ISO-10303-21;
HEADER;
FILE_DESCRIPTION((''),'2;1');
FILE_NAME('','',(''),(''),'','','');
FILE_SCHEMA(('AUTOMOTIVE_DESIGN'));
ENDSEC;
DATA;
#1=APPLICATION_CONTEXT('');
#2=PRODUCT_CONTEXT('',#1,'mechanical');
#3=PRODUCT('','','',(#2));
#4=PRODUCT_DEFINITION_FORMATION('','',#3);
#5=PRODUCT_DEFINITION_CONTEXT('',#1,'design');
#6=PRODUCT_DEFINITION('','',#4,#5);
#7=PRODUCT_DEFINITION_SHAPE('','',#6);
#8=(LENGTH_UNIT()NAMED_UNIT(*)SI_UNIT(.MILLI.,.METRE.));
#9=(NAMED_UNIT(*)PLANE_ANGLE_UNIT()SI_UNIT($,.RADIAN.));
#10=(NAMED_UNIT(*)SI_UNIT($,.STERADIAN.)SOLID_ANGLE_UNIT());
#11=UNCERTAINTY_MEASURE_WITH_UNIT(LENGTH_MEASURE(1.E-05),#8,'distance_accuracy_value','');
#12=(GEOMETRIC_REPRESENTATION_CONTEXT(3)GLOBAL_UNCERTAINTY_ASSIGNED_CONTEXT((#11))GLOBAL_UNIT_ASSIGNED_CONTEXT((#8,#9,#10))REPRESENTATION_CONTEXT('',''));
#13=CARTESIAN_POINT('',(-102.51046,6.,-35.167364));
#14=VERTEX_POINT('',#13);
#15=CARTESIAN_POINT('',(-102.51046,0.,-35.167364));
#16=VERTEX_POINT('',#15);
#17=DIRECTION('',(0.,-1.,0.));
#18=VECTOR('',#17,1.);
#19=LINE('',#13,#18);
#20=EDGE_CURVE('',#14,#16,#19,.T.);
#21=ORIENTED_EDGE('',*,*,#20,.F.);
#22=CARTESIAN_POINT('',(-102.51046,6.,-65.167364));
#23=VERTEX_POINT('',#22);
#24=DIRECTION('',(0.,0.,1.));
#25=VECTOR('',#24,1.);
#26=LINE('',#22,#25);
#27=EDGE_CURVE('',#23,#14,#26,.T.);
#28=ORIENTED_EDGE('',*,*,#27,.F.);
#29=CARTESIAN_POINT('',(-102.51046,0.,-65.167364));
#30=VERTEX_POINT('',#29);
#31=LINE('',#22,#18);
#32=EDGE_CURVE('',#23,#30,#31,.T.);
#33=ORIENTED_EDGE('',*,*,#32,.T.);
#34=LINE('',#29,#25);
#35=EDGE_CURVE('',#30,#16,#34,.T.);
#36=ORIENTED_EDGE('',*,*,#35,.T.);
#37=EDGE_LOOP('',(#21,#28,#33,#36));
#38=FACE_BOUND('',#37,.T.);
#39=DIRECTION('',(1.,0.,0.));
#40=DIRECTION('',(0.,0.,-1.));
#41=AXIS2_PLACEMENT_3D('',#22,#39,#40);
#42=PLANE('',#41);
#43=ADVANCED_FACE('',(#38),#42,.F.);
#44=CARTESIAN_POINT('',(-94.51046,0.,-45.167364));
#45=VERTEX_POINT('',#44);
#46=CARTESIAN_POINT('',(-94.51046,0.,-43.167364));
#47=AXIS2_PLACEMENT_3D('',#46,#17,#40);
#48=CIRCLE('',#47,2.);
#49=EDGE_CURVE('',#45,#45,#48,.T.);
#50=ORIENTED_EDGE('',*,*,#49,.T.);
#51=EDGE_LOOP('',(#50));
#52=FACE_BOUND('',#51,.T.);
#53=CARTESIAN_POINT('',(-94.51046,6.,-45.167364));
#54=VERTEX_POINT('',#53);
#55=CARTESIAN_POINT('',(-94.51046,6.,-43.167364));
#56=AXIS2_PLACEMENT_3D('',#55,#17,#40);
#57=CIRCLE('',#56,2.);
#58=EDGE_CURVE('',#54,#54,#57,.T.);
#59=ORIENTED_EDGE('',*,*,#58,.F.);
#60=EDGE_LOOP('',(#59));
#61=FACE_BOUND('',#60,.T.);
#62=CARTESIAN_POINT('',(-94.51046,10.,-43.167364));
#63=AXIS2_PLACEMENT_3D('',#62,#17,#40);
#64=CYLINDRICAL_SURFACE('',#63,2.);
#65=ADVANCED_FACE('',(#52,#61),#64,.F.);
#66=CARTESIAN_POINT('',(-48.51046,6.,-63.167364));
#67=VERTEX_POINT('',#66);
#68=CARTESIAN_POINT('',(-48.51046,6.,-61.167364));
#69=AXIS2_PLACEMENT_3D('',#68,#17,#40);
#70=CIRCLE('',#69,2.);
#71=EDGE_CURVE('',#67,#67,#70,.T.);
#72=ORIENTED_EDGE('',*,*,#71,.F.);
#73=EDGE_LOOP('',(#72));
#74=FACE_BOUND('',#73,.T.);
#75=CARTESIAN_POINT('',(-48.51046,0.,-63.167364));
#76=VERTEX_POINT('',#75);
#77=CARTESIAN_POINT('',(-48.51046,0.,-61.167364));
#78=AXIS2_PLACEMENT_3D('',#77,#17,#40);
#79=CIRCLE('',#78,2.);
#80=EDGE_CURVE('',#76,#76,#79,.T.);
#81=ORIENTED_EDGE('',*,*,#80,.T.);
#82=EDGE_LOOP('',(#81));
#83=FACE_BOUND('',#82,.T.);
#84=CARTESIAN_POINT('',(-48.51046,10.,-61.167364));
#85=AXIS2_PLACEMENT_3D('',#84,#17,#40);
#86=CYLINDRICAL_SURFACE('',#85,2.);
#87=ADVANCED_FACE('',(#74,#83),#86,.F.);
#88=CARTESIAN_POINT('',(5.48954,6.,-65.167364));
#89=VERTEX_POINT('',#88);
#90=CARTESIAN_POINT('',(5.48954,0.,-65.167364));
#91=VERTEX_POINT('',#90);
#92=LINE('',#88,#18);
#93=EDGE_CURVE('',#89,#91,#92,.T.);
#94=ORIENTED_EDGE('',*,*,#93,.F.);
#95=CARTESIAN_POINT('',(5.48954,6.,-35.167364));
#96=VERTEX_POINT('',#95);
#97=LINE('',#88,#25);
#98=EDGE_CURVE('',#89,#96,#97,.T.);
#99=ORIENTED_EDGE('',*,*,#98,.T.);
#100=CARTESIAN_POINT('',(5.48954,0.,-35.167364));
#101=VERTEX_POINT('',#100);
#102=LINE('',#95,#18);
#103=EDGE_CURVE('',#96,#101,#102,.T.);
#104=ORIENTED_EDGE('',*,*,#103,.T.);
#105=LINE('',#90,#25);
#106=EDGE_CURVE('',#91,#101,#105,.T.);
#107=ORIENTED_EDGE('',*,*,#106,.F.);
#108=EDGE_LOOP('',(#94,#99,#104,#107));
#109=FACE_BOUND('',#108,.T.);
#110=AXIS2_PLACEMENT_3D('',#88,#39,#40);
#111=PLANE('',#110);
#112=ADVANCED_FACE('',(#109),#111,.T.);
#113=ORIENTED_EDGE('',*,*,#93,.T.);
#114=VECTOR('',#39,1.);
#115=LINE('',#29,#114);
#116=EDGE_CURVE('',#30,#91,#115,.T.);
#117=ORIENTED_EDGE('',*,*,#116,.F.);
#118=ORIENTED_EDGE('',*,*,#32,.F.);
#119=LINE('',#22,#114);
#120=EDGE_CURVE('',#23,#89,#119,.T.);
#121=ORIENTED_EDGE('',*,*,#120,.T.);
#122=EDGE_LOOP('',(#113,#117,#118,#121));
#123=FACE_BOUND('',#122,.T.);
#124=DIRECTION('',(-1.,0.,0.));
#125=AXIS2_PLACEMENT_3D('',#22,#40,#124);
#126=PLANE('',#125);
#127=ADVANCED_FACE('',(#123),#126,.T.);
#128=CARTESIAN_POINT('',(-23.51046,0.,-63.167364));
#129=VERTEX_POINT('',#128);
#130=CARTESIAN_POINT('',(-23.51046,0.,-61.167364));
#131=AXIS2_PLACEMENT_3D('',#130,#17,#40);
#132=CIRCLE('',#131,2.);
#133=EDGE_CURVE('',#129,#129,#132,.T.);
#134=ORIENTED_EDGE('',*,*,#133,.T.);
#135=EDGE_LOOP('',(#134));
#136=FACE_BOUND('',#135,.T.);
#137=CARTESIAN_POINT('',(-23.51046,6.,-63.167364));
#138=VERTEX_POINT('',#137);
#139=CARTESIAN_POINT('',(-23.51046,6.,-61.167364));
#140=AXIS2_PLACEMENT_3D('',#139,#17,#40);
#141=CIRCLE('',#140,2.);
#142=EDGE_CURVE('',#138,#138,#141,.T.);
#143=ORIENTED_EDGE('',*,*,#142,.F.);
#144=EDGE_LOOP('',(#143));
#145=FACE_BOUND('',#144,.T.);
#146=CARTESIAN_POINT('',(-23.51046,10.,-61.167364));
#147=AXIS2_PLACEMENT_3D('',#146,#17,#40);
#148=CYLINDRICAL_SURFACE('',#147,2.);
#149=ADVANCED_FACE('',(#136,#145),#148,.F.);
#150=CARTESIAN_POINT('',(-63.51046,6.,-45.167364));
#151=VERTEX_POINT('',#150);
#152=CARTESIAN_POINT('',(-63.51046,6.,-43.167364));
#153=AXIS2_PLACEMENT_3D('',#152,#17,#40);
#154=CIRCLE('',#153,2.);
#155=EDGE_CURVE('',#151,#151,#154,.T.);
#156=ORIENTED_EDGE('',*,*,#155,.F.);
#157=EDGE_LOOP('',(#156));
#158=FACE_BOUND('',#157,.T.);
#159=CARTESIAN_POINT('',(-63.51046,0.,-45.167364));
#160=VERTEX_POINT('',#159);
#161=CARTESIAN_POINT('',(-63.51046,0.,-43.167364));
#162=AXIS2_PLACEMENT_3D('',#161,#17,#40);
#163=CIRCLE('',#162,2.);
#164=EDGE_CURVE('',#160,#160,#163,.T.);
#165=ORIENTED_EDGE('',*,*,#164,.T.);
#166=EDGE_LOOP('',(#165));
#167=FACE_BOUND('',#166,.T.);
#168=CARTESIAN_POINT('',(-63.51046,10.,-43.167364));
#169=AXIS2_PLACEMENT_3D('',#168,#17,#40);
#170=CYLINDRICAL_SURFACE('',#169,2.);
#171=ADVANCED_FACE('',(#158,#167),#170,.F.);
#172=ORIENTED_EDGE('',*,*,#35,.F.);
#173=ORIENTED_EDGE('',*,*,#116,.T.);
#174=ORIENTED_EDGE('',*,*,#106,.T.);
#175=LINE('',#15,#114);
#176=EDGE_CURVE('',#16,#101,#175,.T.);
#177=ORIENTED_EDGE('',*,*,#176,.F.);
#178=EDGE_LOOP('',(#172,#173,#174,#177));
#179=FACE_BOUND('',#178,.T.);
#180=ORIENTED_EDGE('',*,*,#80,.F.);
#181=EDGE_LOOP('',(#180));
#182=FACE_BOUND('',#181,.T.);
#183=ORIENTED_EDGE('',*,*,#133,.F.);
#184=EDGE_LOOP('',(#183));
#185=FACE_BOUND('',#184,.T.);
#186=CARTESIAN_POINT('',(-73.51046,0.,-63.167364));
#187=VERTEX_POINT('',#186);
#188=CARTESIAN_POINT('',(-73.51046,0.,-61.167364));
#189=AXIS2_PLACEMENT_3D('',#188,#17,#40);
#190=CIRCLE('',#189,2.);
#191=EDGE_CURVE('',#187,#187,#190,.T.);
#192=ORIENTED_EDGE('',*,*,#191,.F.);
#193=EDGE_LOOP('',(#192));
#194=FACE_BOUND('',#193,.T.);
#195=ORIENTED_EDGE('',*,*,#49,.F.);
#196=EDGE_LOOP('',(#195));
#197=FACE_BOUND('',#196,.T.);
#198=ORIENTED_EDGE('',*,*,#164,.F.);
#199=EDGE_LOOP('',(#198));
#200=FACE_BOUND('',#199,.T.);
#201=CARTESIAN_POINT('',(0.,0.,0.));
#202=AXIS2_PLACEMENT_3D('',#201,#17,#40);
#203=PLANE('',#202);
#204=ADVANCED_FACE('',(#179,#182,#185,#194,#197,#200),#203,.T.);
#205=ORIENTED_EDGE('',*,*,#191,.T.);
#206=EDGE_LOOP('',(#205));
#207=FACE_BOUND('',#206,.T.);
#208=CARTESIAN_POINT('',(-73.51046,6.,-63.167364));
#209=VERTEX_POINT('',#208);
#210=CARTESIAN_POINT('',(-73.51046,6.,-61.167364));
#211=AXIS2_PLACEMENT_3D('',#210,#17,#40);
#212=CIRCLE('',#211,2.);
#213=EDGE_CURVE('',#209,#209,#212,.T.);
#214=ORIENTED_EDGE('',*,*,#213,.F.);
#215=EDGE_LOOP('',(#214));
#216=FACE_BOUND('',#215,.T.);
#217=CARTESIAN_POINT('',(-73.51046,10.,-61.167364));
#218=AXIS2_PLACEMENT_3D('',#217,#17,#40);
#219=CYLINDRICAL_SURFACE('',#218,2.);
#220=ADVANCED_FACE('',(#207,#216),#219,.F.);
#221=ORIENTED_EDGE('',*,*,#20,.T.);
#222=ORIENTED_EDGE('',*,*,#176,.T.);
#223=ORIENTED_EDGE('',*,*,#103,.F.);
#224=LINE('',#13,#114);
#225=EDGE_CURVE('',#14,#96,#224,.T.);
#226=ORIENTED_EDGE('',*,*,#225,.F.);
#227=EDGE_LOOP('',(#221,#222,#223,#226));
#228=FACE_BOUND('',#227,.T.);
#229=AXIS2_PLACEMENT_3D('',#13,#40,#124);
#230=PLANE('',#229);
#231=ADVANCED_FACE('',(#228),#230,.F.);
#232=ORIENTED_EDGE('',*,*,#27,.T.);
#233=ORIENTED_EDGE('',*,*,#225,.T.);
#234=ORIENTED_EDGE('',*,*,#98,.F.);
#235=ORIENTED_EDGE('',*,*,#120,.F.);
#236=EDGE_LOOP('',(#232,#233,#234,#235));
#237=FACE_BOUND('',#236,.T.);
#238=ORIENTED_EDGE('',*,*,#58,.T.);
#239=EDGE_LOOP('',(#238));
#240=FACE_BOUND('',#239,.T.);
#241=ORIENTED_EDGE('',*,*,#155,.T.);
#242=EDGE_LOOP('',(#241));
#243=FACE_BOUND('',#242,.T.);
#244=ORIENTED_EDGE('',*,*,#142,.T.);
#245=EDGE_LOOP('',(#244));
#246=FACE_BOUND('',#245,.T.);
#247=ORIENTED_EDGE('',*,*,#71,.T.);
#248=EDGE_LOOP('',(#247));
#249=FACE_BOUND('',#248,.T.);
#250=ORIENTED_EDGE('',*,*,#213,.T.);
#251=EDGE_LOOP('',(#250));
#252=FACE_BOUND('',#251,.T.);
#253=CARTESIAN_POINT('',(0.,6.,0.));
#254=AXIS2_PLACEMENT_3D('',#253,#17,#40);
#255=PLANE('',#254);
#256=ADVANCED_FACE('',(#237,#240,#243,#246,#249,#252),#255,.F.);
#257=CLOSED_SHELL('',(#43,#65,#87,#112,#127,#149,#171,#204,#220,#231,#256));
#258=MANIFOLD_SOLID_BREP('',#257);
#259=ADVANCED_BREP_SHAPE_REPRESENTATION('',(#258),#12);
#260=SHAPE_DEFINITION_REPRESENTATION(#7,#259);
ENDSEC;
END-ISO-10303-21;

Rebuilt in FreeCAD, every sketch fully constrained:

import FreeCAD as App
import Part
import Sketcher

V = App.Vector

doc = App.newDocument("Part")
params = doc.addObject("Spreadsheet::Sheet", "Params")
for row, (alias, value) in enumerate([
    ("sketch1_width", "108 mm"),
    ("sketch1_height", "30 mm"),
    ("pad1_length", "6 mm"),
    ("sketch2_diameter", "4 mm"),
    ("pocket1_length", "10 mm"),
], start=1):
    params.set(f"A{row}", alias)
    params.set(f"B{row}", "=" + value)
    params.setAlias(f"B{row}", alias)

body = doc.addObject("PartDesign::Body", "Body")

# Sketch on XZ plane
sketch1 = body.newObject("Sketcher::SketchObject", "Sketch")
sketch1.AttachmentSupport = (doc.getObject("XZ_Plane"), [""])
sketch1.MapMode = "FlatFace"
sketch1.addGeometry([
    Part.LineSegment(V(-103, -65, 0), V(-103, -35, 0)),
    Part.LineSegment(V(-103, -35, 0), V(5, -35, 0)),
    Part.LineSegment(V(5, -35, 0), V(5, -65, 0)),
    Part.LineSegment(V(5, -65, 0), V(-103, -65, 0)),
], False)
sketch1.addConstraint([
    Sketcher.Constraint("Coincident", 0, 2, 1, 1),
    Sketcher.Constraint("Coincident", 1, 2, 2, 1),
    Sketcher.Constraint("Coincident", 2, 2, 3, 1),
    Sketcher.Constraint("Coincident", 3, 2, 0, 1),
    Sketcher.Constraint("Vertical", 0),
    Sketcher.Constraint("Horizontal", 1),
    Sketcher.Constraint("Vertical", 2),
    Sketcher.Constraint("Horizontal", 3),
    Sketcher.Constraint("DistanceX", 1, 1, 1, 2, 108.0),
    Sketcher.Constraint("DistanceY", 0, 1, 0, 2, 30.0),
    Sketcher.Constraint("DistanceX", 0, 2, -1, 1, 102.51046),
    Sketcher.Constraint("DistanceY", 0, 2, -1, 1, 35.167364),
])
sketch1.setExpression("Constraints[8]", "Params.sketch1_width")
sketch1.setExpression("Constraints[9]", "Params.sketch1_height")
pad1 = body.newObject("PartDesign::Pad", "Pad")
pad1.Profile = sketch1
pad1.setExpression("Length", "Params.pad1_length")
pad1.Reversed = True

# Sketch on XZ plane
sketch2 = body.newObject("Sketcher::SketchObject", "Sketch001")
sketch2.AttachmentSupport = (doc.getObject("XZ_Plane"), [""])
sketch2.MapMode = "FlatFace"
sketch2.addGeometry([
    Part.Circle(V(-73.5, -61.2, 0), V(0, 0, 1), 2),  # 0
    Part.Circle(V(-48.5, -61.2, 0), V(0, 0, 1), 2),  # 1
    Part.Circle(V(-23.5, -61.2, 0), V(0, 0, 1), 2),  # 2
    Part.Circle(V(-94.5, -43.2, 0), V(0, 0, 1), 2),  # 3
    Part.Circle(V(-63.5, -43.2, 0), V(0, 0, 1), 2),  # 4
], False)
sketch2.addConstraint([
    Sketcher.Constraint("Equal", 0, 1),
    Sketcher.Constraint("Equal", 1, 2),
    Sketcher.Constraint("Equal", 2, 3),
    Sketcher.Constraint("Equal", 3, 4),
    Sketcher.Constraint("Horizontal", 0, 3, 1, 3),
    Sketcher.Constraint("Horizontal", 1, 3, 2, 3),
    Sketcher.Constraint("Horizontal", 3, 3, 4, 3),
    Sketcher.Constraint("Diameter", 0, 4.0),
    Sketcher.Constraint("DistanceX", 0, 3, 1, 3, 25.0),
    Sketcher.Constraint("DistanceX", 1, 3, 2, 3, 25.0),
    Sketcher.Constraint("DistanceX", 3, 3, 0, 3, 21.0),
    Sketcher.Constraint("DistanceY", 0, 3, 3, 3, 18.0),
    Sketcher.Constraint("DistanceX", 0, 3, 4, 3, 10.0),
    Sketcher.Constraint("DistanceX", 0, 3, -1, 1, 73.51046),
    Sketcher.Constraint("DistanceY", 0, 3, -1, 1, 61.167364),
])
sketch2.setExpression("Constraints[7]", "Params.sketch2_diameter")
pocket1 = body.newObject("PartDesign::Pocket", "Pocket")
pocket1.Profile = sketch2
pocket1.setExpression("Length", "Params.pocket1_length")

doc.recompute()
